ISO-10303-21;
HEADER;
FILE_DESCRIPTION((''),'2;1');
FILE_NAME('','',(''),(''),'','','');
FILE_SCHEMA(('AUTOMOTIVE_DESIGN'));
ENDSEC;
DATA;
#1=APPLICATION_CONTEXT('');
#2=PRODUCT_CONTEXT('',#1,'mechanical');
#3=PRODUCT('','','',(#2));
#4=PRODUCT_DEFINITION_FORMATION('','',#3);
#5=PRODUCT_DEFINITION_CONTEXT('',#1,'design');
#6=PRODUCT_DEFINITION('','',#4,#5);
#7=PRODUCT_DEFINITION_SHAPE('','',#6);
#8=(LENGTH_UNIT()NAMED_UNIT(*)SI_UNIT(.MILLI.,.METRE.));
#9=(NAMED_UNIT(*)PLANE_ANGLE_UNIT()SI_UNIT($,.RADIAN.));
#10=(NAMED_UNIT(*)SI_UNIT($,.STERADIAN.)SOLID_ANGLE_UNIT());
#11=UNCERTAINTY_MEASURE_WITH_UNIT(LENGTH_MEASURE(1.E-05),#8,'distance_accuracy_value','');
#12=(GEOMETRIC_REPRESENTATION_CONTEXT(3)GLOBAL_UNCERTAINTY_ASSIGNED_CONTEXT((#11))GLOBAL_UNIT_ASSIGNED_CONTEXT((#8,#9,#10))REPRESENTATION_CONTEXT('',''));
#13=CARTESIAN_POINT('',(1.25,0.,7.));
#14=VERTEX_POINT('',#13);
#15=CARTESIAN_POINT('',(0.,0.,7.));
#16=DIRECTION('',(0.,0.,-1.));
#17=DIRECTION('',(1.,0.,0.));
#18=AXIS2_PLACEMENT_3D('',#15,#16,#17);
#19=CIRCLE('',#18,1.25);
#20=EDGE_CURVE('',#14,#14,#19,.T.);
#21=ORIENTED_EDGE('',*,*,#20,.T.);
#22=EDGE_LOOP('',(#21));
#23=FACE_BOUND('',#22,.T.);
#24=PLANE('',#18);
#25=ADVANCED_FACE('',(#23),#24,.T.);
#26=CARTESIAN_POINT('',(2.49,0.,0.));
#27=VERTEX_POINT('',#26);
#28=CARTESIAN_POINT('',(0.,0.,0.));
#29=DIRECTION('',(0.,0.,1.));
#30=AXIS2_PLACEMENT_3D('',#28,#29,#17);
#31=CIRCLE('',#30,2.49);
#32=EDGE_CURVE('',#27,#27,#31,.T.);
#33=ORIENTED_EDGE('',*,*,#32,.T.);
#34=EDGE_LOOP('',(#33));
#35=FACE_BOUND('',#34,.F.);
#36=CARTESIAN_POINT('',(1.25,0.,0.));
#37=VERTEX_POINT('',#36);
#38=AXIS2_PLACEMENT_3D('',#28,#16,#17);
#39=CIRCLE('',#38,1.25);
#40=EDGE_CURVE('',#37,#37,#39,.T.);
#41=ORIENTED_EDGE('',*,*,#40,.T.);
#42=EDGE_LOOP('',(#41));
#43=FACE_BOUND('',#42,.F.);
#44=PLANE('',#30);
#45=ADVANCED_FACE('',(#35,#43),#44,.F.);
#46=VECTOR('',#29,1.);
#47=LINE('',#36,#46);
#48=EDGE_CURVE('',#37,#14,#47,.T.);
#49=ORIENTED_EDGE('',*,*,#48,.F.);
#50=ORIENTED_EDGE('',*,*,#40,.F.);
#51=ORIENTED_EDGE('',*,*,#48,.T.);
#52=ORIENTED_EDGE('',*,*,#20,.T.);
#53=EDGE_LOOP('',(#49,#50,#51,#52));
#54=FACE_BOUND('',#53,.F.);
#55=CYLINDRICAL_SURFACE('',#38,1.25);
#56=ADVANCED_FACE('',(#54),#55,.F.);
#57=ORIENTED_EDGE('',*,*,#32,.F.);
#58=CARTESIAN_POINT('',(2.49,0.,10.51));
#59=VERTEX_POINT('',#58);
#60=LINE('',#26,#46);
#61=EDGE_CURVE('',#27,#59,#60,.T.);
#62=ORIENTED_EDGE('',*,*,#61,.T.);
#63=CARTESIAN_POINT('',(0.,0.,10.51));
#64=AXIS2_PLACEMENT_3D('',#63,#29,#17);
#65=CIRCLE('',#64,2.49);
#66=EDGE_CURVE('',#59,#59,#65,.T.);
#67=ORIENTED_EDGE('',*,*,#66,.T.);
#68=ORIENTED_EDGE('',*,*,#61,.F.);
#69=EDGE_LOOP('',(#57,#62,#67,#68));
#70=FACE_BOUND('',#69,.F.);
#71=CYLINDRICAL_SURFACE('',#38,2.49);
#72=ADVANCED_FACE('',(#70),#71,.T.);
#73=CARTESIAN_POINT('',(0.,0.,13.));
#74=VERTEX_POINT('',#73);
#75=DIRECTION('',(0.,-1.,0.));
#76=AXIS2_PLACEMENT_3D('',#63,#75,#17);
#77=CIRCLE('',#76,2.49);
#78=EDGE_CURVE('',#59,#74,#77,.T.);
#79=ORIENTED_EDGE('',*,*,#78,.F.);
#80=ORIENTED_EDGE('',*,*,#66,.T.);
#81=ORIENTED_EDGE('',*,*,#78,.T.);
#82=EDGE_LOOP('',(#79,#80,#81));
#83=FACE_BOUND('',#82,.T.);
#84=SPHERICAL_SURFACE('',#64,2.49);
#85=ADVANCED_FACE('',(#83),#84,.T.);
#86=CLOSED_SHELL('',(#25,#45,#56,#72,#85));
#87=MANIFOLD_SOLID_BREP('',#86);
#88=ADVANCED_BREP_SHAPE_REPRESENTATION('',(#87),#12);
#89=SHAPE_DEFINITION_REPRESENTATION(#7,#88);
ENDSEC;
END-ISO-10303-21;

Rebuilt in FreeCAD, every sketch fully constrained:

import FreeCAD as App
import Part
import Sketcher


def edges_at(feature, points):
    """Names of the edges that pass closest to the given points."""
    edges = feature.Shape.Edges
    near = lambda p: min(range(len(edges)), key=lambda i: edges[i].distToShape(Part.Vertex(*p))[0])
    return sorted({f"Edge{near(p) + 1}" for p in points})

doc = App.newDocument("Part")
body = doc.addObject("PartDesign::Body", "Body")

sketch1 = body.newObject("Sketcher::SketchObject", "Sketch")
sketch1.AttachmentSupport = (doc.getObject("XY_Plane"), [""])
sketch1.MapMode = "FlatFace"
sketch1.addGeometry(Part.Circle(App.Vector(0, 0, 0), App.Vector(0, 0, 1), 2.5), False)
sketch1.addConstraint(Sketcher.Constraint("Coincident", 0, 3, -1, 1))
sketch1.addConstraint(Sketcher.Constraint("Diameter", 0, 4.98))
pad1 = body.newObject("PartDesign::Pad", "Pad")
pad1.Profile = sketch1
pad1.Length = 13

sketch2 = body.newObject("Sketcher::SketchObject", "Sketch001")
sketch2.AttachmentSupport = (doc.getObject("XY_Plane"), [""])
sketch2.MapMode = "FlatFace"
sketch2.addGeometry(Part.Circle(App.Vector(0, 0, 0), App.Vector(0, 0, 1), 1.2), False)
sketch2.addConstraint(Sketcher.Constraint("Coincident", 0, 3, -1, 1))
sketch2.addConstraint(Sketcher.Constraint("Diameter", 0, 2.5))
pocket1 = body.newObject("PartDesign::Pocket", "Pocket")
pocket1.Profile = sketch2
pocket1.Length = 7
pocket1.Reversed = True
doc.recompute()

fillet = body.newObject("PartDesign::Fillet", "Fillet")
fillet.Base = (pocket1, edges_at(pocket1, [(-2.49, 0, 13)]))
fillet.Radius = 2.49

doc.recompute()
